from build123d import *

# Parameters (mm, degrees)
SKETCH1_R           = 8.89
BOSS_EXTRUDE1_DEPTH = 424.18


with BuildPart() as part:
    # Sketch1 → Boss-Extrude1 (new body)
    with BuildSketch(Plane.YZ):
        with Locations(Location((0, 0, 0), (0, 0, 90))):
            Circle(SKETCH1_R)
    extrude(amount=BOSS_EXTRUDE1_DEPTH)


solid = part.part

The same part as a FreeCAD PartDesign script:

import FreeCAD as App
import Part
import Sketcher

V = App.Vector
Q = App.Units.Quantity

doc = App.newDocument("Part")
body = doc.addObject("PartDesign::Body", "Body")

sketch1 = body.newObject("Sketcher::SketchObject", "Sketch")
sketch1.AttachmentSupport = (doc.getObject("YZ_Plane"), [""])
sketch1.MapMode = "FlatFace"
sketch1.addGeometry(Part.Circle(V(0, 0, 0), V(0, 0, 1), 8.89), False)
sketch1.addConstraint(Sketcher.Constraint("Coincident", 0, 3, -1, 1))
sketch1.addConstraint(Sketcher.Constraint("Diameter", 0, Q("0.7 in")))
pad1 = body.newObject("PartDesign::Pad", "Pad")
pad1.Profile = sketch1
pad1.Length = Q("16.7 in")

doc.recompute()
